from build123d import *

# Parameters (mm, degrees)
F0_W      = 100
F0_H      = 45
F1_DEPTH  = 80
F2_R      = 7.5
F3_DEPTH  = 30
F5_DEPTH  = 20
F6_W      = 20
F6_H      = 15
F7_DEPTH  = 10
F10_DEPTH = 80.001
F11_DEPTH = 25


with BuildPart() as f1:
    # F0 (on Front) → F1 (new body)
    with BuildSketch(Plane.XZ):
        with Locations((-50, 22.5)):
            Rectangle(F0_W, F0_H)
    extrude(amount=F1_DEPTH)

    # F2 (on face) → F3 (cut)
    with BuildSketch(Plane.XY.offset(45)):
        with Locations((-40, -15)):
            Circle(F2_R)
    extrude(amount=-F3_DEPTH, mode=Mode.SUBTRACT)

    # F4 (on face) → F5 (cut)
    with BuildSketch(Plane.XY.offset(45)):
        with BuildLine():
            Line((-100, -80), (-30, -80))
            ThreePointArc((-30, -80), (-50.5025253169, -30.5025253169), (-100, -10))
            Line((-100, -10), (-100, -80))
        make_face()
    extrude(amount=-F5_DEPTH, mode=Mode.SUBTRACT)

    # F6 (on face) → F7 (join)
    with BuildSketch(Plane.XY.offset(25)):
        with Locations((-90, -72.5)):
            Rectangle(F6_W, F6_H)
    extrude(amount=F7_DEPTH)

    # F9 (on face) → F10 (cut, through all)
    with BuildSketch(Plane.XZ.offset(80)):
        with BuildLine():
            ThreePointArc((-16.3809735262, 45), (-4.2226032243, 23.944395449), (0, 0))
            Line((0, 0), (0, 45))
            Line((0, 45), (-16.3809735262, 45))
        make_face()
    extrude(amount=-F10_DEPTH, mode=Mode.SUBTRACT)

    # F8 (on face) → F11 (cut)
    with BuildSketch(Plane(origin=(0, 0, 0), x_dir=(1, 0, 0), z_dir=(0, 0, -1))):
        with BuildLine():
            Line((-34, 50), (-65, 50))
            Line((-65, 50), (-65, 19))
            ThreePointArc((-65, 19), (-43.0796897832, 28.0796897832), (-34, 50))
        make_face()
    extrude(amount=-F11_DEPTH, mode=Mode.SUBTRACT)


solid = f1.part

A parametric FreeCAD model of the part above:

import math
import FreeCAD as App
import Part
import Sketcher
from FreeCAD import Vector
Q = App.Units.Quantity


def add_polygon(sketch, points):
    """Adds a closed chain of lines whose ends are joined by coincident constraints."""
    first, n = sketch.GeometryCount, len(points)
    for a, b in zip(points, points[1:] + points[:1]):
        sketch.addGeometry(Part.LineSegment(App.Vector(*a, 0), App.Vector(*b, 0)), False)
    for i in range(n):
        sketch.addConstraint(Sketcher.Constraint("Coincident", first + i, 2, first + (i + 1) % n, 1))

doc = App.newDocument("Part")
body = doc.addObject("PartDesign::Body", "Body")

sketch1 = doc.addObject("Sketcher::SketchObject", "Sketch")
body.addObject(sketch1)
sketch1.AttachmentSupport = (doc.XZ_Plane, [""])
sketch1.MapMode = "FlatFace"
add_polygon(sketch1, [(-100, 45), (-100, 0), (0, 0), (0, 45)])
sketch1.addConstraint(Sketcher.Constraint("Vertical", 0))
sketch1.addConstraint(Sketcher.Constraint("Horizontal", 1))
sketch1.addConstraint(Sketcher.Constraint("Vertical", 2))
sketch1.addConstraint(Sketcher.Constraint("Horizontal", 3))
sketch1.addConstraint(Sketcher.Constraint("Coincident", 1, 2, -1, 1))
sketch1.addConstraint(Sketcher.Constraint("DistanceX", 1, 1, 1, 2, Q("100 mm")))
sketch1.addConstraint(Sketcher.Constraint("DistanceY", 0, 2, 0, 1, Q("45 mm")))
pad1 = doc.addObject("PartDesign::Pad", "Pad")
body.addObject(pad1)
pad1.Profile = sketch1
pad1.Length = 80

sketch2 = doc.addObject("Sketcher::SketchObject", "Sketch001")
body.addObject(sketch2)
sketch2.AttachmentSupport = (doc.XY_Plane, [""])
sketch2.MapMode = "FlatFace"
sketch2.AttachmentOffset = App.Placement(Vector(0, 0, 45), App.Rotation())
sketch2.addGeometry(Part.Circle(Vector(-40, -15, 0), Vector(0, 0, 1), 7.5), False)
sketch2.addConstraint(Sketcher.Constraint("Diameter", 0, Q("15 mm")))
sketch2.addConstraint(Sketcher.Constraint("DistanceX", 0, 3, -1, 1, Q("40 mm")))
sketch2.addConstraint(Sketcher.Constraint("DistanceY", 0, 3, -1, 1, Q("15 mm")))
pocket1 = doc.addObject("PartDesign::Pocket", "Pocket")
body.addObject(pocket1)
pocket1.Profile = sketch2
pocket1.Length = 30

sketch3 = doc.addObject("Sketcher::SketchObject", "Sketch002")
body.addObject(sketch3)
sketch3.AttachmentSupport = (doc.XY_Plane, [""])
sketch3.MapMode = "FlatFace"
sketch3.AttachmentOffset = App.Placement(Vector(0, 0, 45), App.Rotation())
sketch3.addGeometry(Part.LineSegment(Vector(-100, -80, 0), Vector(-30, -80, 0)), False)
sketch3.addGeometry(Part.ArcOfCircle(Part.Circle(Vector(-100, -80, 0), Vector(0, 0, 1), 70), math.radians(0), math.radians(90)), False)
sketch3.addGeometry(Part.LineSegment(Vector(-100, -10, 0), Vector(-100, -80, 0)), False)
sketch3.addConstraint(Sketcher.Constraint("Coincident", 0, 2, 1, 1))
sketch3.addConstraint(Sketcher.Constraint("Coincident", 1, 2, 2, 1))
sketch3.addConstraint(Sketcher.Constraint("Coincident", 2, 2, 0, 1))
sketch3.addConstraint(Sketcher.Constraint("Horizontal", 0))
sketch3.addConstraint(Sketcher.Constraint("Vertical", 2))
sketch3.addConstraint(Sketcher.Constraint("Coincident", 2, 2, 1, 3))
sketch3.addConstraint(Sketcher.Constraint("Radius", 1, Q("70 mm")))
sketch3.addConstraint(Sketcher.Constraint("DistanceX", 1, 3, -1, 1, Q("100 mm")))
sketch3.addConstraint(Sketcher.Constraint("DistanceY", 1, 3, -1, 1, Q("80 mm")))
pocket2 = doc.addObject("PartDesign::Pocket", "Pocket001")
body.addObject(pocket2)
pocket2.Profile = sketch3
pocket2.Length = 20

sketch4 = doc.addObject("Sketcher::SketchObject", "Sketch003")
body.addObject(sketch4)
sketch4.AttachmentSupport = (doc.XY_Plane, [""])
sketch4.MapMode = "FlatFace"
sketch4.AttachmentOffset = App.Placement(Vector(0, 0, 25), App.Rotation())
add_polygon(sketch4, [(-100, -65), (-100, -80), (-80, -80), (-80, -65)])
sketch4.addConstraint(Sketcher.Constraint("Vertical", 0))
sketch4.addConstraint(Sketcher.Constraint("Horizontal", 1))
sketch4.addConstraint(Sketcher.Constraint("Vertical", 2))
sketch4.addConstraint(Sketcher.Constraint("Horizontal", 3))
sketch4.addConstraint(Sketcher.Constraint("DistanceX", 1, 1, 1, 2, Q("20 mm")))
sketch4.addConstraint(Sketcher.Constraint("DistanceY", 0, 2, 0, 1, Q("15 mm")))
sketch4.addConstraint(Sketcher.Constraint("DistanceX", 0, 2, -1, 1, Q("100 mm")))
sketch4.addConstraint(Sketcher.Constraint("DistanceY", 0, 2, -1, 1, Q("80 mm")))
pad2 = doc.addObject("PartDesign::Pad", "Pad001")
body.addObject(pad2)
pad2.Profile = sketch4
pad2.Length = 10

sketch5 = doc.addObject("Sketcher::SketchObject", "Sketch004")
body.addObject(sketch5)
sketch5.AttachmentSupport = (doc.XZ_Plane, [""])
sketch5.MapMode = "FlatFace"
sketch5.AttachmentOffset = App.Placement(Vector(0, 0, 80), App.Rotation())
sketch5.addGeometry(Part.ArcOfCircle(Part.Circle(Vector(-70, 0, 0), Vector(0, 0, 1), 70), math.radians(0), math.radians(40.005201)), False)
sketch5.addGeometry(Part.LineSegment(Vector(0, 0, 0), Vector(0, 45, 0)), False)
sketch5.addGeometry(Part.LineSegment(Vector(0, 45, 0), Vector(-16.380974, 45, 0)), False)
sketch5.addConstraint(Sketcher.Constraint("Tangent", 0, 1, 1, 1))
sketch5.addConstraint(Sketcher.Constraint("Coincident", 1, 2, 2, 1))
sketch5.addConstraint(Sketcher.Constraint("Coincident", 2, 2, 0, 2))
sketch5.addConstraint(Sketcher.Constraint("Vertical", 1))
sketch5.addConstraint(Sketcher.Constraint("Horizontal", 2))
sketch5.addConstraint(Sketcher.Constraint("Coincident", 0, 1, -1, 1))
sketch5.addConstraint(Sketcher.Constraint("Radius", 0, Q("70 mm")))
sketch5.addConstraint(Sketcher.Constraint("DistanceY", 1, 1, 1, 2, Q("45 mm")))
pocket3 = doc.addObject("PartDesign::Pocket", "Pocket002")
body.addObject(pocket3)
pocket3.Profile = sketch5
pocket3.Type = "ThroughAll"

sketch6 = doc.addObject("Sketcher::SketchObject", "Sketch005")
body.addObject(sketch6)
sketch6.AttachmentSupport = (doc.XY_Plane, [""])
sketch6.MapMode = "FlatFace"
sketch6.addGeometry(Part.LineSegment(Vector(-34, -50, 0), Vector(-65, -50, 0)), False)
sketch6.addGeometry(Part.LineSegment(Vector(-65, -50, 0), Vector(-65, -19, 0)), False)
sketch6.addGeometry(Part.ArcOfCircle(Part.Circle(Vector(-65, -50, 0), Vector(0, 0, 1), 31), math.radians(0), math.radians(90)), False)
sketch6.addConstraint(Sketcher.Constraint("Coincident", 0, 2, 1, 1))
sketch6.addConstraint(Sketcher.Constraint("Coincident", 1, 2, 2, 2))
sketch6.addConstraint(Sketcher.Constraint("Coincident", 2, 1, 0, 1))
sketch6.addConstraint(Sketcher.Constraint("Horizontal", 0))
sketch6.addConstraint(Sketcher.Constraint("Vertical", 1))
sketch6.addConstraint(Sketcher.Constraint("Coincident", 0, 2, 2, 3))
sketch6.addConstraint(Sketcher.Constraint("Radius", 2, Q("31 mm")))
sketch6.addConstraint(Sketcher.Constraint("DistanceX", 2, 3, -1, 1, Q("65 mm")))
sketch6.addConstraint(Sketcher.Constraint("DistanceY", 2, 3, -1, 1, Q("50 mm")))
pocket4 = doc.addObject("PartDesign::Pocket", "Pocket003")
body.addObject(pocket4)
pocket4.Profile = sketch6
pocket4.Length = 25
pocket4.Reversed = True

doc.recompute()
